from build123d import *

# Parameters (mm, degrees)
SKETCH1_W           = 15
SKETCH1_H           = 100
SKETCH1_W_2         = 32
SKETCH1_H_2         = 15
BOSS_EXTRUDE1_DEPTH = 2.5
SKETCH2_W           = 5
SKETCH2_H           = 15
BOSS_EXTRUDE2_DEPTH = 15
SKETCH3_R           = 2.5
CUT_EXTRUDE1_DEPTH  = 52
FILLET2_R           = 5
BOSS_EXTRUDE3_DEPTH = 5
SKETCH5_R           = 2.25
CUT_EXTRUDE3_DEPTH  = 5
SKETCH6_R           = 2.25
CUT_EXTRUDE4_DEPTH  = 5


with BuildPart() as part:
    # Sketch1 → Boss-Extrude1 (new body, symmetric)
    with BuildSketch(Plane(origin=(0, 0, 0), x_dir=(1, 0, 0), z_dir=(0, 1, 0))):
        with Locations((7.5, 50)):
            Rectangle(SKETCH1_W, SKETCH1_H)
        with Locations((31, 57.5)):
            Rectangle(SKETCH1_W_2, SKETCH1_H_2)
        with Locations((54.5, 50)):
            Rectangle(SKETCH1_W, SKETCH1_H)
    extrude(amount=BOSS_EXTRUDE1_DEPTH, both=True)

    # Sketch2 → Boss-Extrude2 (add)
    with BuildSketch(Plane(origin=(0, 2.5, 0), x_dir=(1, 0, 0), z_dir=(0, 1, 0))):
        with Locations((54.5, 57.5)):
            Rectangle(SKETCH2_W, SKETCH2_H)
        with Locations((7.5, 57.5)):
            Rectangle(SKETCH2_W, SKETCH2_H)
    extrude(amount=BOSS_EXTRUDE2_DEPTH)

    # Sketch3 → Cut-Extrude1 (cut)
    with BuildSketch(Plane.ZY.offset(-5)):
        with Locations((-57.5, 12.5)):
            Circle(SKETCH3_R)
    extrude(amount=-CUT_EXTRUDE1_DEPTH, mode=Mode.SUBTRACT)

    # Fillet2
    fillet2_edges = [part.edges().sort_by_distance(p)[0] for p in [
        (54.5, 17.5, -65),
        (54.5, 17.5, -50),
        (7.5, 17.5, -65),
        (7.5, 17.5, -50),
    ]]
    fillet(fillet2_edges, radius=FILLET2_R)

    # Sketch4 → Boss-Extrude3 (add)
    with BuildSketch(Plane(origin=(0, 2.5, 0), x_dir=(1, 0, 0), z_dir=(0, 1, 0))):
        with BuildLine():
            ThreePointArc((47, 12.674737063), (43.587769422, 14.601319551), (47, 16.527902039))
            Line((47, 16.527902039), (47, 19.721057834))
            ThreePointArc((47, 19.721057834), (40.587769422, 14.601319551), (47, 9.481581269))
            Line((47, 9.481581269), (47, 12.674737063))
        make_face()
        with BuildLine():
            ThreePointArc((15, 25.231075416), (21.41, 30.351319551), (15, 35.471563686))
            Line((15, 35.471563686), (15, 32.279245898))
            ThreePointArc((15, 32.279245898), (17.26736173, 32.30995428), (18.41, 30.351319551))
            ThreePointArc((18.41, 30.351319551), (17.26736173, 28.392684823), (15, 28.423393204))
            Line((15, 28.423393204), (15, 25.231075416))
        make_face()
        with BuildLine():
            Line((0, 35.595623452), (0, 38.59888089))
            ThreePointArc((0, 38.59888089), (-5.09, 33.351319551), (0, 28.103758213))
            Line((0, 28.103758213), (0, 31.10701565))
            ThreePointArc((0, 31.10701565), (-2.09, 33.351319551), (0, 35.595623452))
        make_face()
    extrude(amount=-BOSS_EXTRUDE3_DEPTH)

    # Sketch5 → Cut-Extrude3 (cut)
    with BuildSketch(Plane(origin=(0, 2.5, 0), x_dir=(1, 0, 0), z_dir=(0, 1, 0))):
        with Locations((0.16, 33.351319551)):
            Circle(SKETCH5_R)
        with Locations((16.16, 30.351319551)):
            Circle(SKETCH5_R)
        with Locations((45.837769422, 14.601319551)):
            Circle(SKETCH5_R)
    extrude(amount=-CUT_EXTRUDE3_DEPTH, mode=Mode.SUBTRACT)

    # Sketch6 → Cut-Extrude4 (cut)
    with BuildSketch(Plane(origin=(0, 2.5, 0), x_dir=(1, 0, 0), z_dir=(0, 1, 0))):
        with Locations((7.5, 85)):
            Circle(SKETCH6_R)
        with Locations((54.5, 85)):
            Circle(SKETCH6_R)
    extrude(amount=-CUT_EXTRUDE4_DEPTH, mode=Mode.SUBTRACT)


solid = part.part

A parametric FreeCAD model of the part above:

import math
import FreeCAD as App
import Part
import Sketcher
from FreeCAD import Vector


def edges_at(feature, points):
    """Names of the edges that pass closest to the given points."""
    edges = feature.Shape.Edges
    near = lambda p: min(range(len(edges)), key=lambda i: edges[i].distToShape(Part.Vertex(*p))[0])
    return sorted({f"Edge{near(p) + 1}" for p in points})

doc = App.newDocument("Part")
body = doc.addObject("PartDesign::Body", "Body")

# Sketch on XZ plane
sketch1 = doc.addObject("Sketcher::SketchObject", "Sketch")
body.addObject(sketch1)
sketch1.AttachmentSupport = (doc.XZ_Plane, [""])
sketch1.MapMode = "FlatFace"
sketch1.addGeometry(Part.LineSegment(Vector(0, -100, 0), Vector(0, 0, 0)), False)
sketch1.addGeometry(Part.LineSegment(Vector(0, 0, 0), Vector(15, 0, 0)), False)
sketch1.addGeometry(Part.LineSegment(Vector(15, 0, 0), Vector(15, -50, 0)), False)
sketch1.addGeometry(Part.LineSegment(Vector(15, -50, 0), Vector(47, -50, 0)), False)
sketch1.addGeometry(Part.LineSegment(Vector(47, -50, 0), Vector(47, 0, 0)), False)
sketch1.addGeometry(Part.LineSegment(Vector(47, 0, 0), Vector(62, 0, 0)), False)
sketch1.addGeometry(Part.LineSegment(Vector(62, 0, 0), Vector(62, -100, 0)), False)
sketch1.addGeometry(Part.LineSegment(Vector(62, -100, 0), Vector(47, -100, 0)), False)
sketch1.addGeometry(Part.LineSegment(Vector(47, -100, 0), Vector(47, -65, 0)), False)
sketch1.addGeometry(Part.LineSegment(Vector(47, -65, 0), Vector(15, -65, 0)), False)
sketch1.addGeometry(Part.LineSegment(Vector(15, -65, 0), Vector(15, -100, 0)), False)
sketch1.addGeometry(Part.LineSegment(Vector(15, -100, 0), Vector(0, -100, 0)), False)
sketch1.addConstraint(Sketcher.Constraint("Coincident", 0, 2, 1, 1))
sketch1.addConstraint(Sketcher.Constraint("Coincident", 1, 2, 2, 1))
sketch1.addConstraint(Sketcher.Constraint("Coincident", 2, 2, 3, 1))
sketch1.addConstraint(Sketcher.Constraint("Coincident", 3, 2, 4, 1))
sketch1.addConstraint(Sketcher.Constraint("Coincident", 4, 2, 5, 1))
sketch1.addConstraint(Sketcher.Constraint("Coincident", 5, 2, 6, 1))
sketch1.addConstraint(Sketcher.Constraint("Coincident", 6, 2, 7, 1))
sketch1.addConstraint(Sketcher.Constraint("Coincident", 7, 2, 8, 1))
sketch1.addConstraint(Sketcher.Constraint("Coincident", 8, 2, 9, 1))
sketch1.addConstraint(Sketcher.Constraint("Coincident", 9, 2, 10, 1))
sketch1.addConstraint(Sketcher.Constraint("Coincident", 10, 2, 11, 1))
sketch1.addConstraint(Sketcher.Constraint("Coincident", 11, 2, 0, 1))
sketch1.addConstraint(Sketcher.Constraint("Vertical", 0))
sketch1.addConstraint(Sketcher.Constraint("Horizontal", 1))
sketch1.addConstraint(Sketcher.Constraint("Vertical", 2))
sketch1.addConstraint(Sketcher.Constraint("Horizontal", 3))
sketch1.addConstraint(Sketcher.Constraint("Vertical", 4))
sketch1.addConstraint(Sketcher.Constraint("Horizontal", 5))
sketch1.addConstraint(Sketcher.Constraint("Vertical", 6))
sketch1.addConstraint(Sketcher.Constraint("Horizontal", 7))
sketch1.addConstraint(Sketcher.Constraint("Vertical", 8))
sketch1.addConstraint(Sketcher.Constraint("Horizontal", 9))
sketch1.addConstraint(Sketcher.Constraint("Vertical", 10))
sketch1.addConstraint(Sketcher.Constraint("Horizontal", 11))
sketch1.addConstraint(Sketcher.Constraint("Coincident", 0, 2, -1, 1))
sketch1.addConstraint(Sketcher.Constraint("PointOnObject", 4, 2, -1))
sketch1.addConstraint(Sketcher.Constraint("Horizontal", 7, 2, 10, 2))
sketch1.addConstraint(Sketcher.Constraint("Vertical", 4, 2, 7, 2))
sketch1.addConstraint(Sketcher.Constraint("Vertical", 2, 2, 9, 2))
sketch1.addConstraint(Sketcher.Constraint("Equal", 1, 5))
sketch1.addConstraint(Sketcher.Constraint("DistanceX", 1, 1, 1, 2, 15.0))
sketch1.addConstraint(Sketcher.Constraint("DistanceX", 3, 1, 3, 2, 32.0))
sketch1.addConstraint(Sketcher.Constraint("DistanceY", 0, 1, 0, 2, 100.0))
sketch1.addConstraint(Sketcher.Constraint("DistanceY", 2, 2, 2, 1, 50.0))
sketch1.addConstraint(Sketcher.Constraint("DistanceY", 8, 1, 8, 2, 35.0))
pad1 = doc.addObject("PartDesign::Pad", "Pad")
body.addObject(pad1)
pad1.Profile = sketch1
pad1.Length = 5
pad1.Midplane = True

# Sketch on XZ plane
sketch2 = doc.addObject("Sketcher::SketchObject", "Sketch001")
body.addObject(sketch2)
sketch2.AttachmentSupport = (doc.XZ_Plane, [""])
sketch2.MapMode = "FlatFace"
sketch2.AttachmentOffset = App.Placement(Vector(0, 0, -2.5), App.Rotation())
sketch2.addGeometry(Part.LineSegment(Vector(52, -65, 0), Vector(52, -50, 0)), False)
sketch2.addGeometry(Part.LineSegment(Vector(52, -50, 0), Vector(57, -50, 0)), False)
sketch2.addGeometry(Part.LineSegment(Vector(57, -50, 0), Vector(57, -65, 0)), False)
sketch2.addGeometry(Part.LineSegment(Vector(57, -65, 0), Vector(52, -65, 0)), False)
sketch2.addGeometry(Part.LineSegment(Vector(5, -65, 0), Vector(5, -50, 0)), False)
sketch2.addGeometry(Part.LineSegment(Vector(5, -50, 0), Vector(10, -50, 0)), False)
sketch2.addGeometry(Part.LineSegment(Vector(10, -50, 0), Vector(10, -65, 0)), False)
sketch2.addGeometry(Part.LineSegment(Vector(10, -65, 0), Vector(5, -65, 0)), False)
sketch2.addConstraint(Sketcher.Constraint("Coincident", 0, 2, 1, 1))
sketch2.addConstraint(Sketcher.Constraint("Coincident", 1, 2, 2, 1))
sketch2.addConstraint(Sketcher.Constraint("Coincident", 2, 2, 3, 1))
sketch2.addConstraint(Sketcher.Constraint("Coincident", 3, 2, 0, 1))
sketch2.addConstraint(Sketcher.Constraint("Coincident", 4, 2, 5, 1))
sketch2.addConstraint(Sketcher.Constraint("Coincident", 5, 2, 6, 1))
sketch2.addConstraint(Sketcher.Constraint("Coincident", 6, 2, 7, 1))
sketch2.addConstraint(Sketcher.Constraint("Coincident", 7, 2, 4, 1))
sketch2.addConstraint(Sketcher.Constraint("Vertical", 0))
sketch2.addConstraint(Sketcher.Constraint("Horizontal", 1))
sketch2.addConstraint(Sketcher.Constraint("Vertical", 2))
sketch2.addConstraint(Sketcher.Constraint("Horizontal", 3))
sketch2.addConstraint(Sketcher.Constraint("Vertical", 4))
sketch2.addConstraint(Sketcher.Constraint("Horizontal", 5))
sketch2.addConstraint(Sketcher.Constraint("Vertical", 6))
sketch2.addConstraint(Sketcher.Constraint("Horizontal", 7))
sketch2.addConstraint(Sketcher.Constraint("Horizontal", 1, 2, 4, 2))
sketch2.addConstraint(Sketcher.Constraint("Horizontal", 3, 2, 6, 2))
sketch2.addConstraint(Sketcher.Constraint("Equal", 3, 5))
sketch2.addConstraint(Sketcher.Constraint("DistanceX", 1, 1, 1, 2, 5.0))
sketch2.addConstraint(Sketcher.Constraint("DistanceY", 0, 1, 0, 2, 15.0))
sketch2.addConstraint(Sketcher.Constraint("DistanceX", -1, 1, 0, 2, 52.0))
sketch2.addConstraint(Sketcher.Constraint("DistanceY", 0, 2, -1, 1, 50.0))
sketch2.addConstraint(Sketcher.Constraint("DistanceX", -1, 1, 4, 2, 5.0))
pad2 = doc.addObject("PartDesign::Pad", "Pad001")
body.addObject(pad2)
pad2.Profile = sketch2
pad2.Length = 15
pad2.Reversed = True

# Sketch on YZ plane
sketch3 = doc.addObject("Sketcher::SketchObject", "Sketch002")
body.addObject(sketch3)
sketch3.AttachmentSupport = (doc.YZ_Plane, [""])
sketch3.MapMode = "FlatFace"
sketch3.AttachmentOffset = App.Placement(Vector(0, 0, 5), App.Rotation())
sketch3.addGeometry(Part.Circle(Vector(12.5, -57.5, 0), Vector(0, 0, 1), 2.5), False)
sketch3.addConstraint(Sketcher.Constraint("Diameter", 0, 5.0))
sketch3.addConstraint(Sketcher.Constraint("DistanceX", -1, 1, 0, 3, 12.5))
sketch3.addConstraint(Sketcher.Constraint("DistanceY", 0, 3, -1, 1, 57.5))
pocket1 = doc.addObject("PartDesign::Pocket", "Pocket")
body.addObject(pocket1)
pocket1.Profile = sketch3
pocket1.Length = 52
pocket1.Reversed = True
doc.recompute()

fillet = doc.addObject("PartDesign::Fillet", "Fillet")
body.addObject(fillet)
fillet.Base = (pocket1, edges_at(pocket1, [
    (54.5, 17.5, -65),
    (54.5, 17.5, -50),
    (7.5, 17.5, -65),
    (7.5, 17.5, -50),
]))
fillet.Radius = 5

# Sketch on XZ plane
sketch4 = doc.addObject("Sketcher::SketchObject", "Sketch003")
body.addObject(sketch4)
sketch4.AttachmentSupport = (doc.XZ_Plane, [""])
sketch4.MapMode = "FlatFace"
sketch4.AttachmentOffset = App.Placement(Vector(0, 0, -2.5), App.Rotation())
sketch4.addGeometry(Part.ArcOfCircle(Part.Circle(Vector(45.8, -14.6, 0), Vector(0, 0, 1), 2.2), math.radians(59), math.radians(301)), False)
sketch4.addGeometry(Part.LineSegment(Vector(47, -16.5, 0), Vector(47, -19.7, 0)), False)
sketch4.addGeometry(Part.ArcOfCircle(Part.Circle(Vector(45.8, -14.6, 0), Vector(0, 0, 1), 5.2), math.radians(77), math.radians(283)), False)
sketch4.addGeometry(Part.LineSegment(Vector(47, -9.5, 0), Vector(47, -12.7, 0)), False)
sketch4.addGeometry(Part.ArcOfCircle(Part.Circle(Vector(16.2, -30.4, 0), Vector(0, 0, 1), 5.2), math.radians(-103), math.radians(103)), False)
sketch4.addGeometry(Part.LineSegment(Vector(15, -35.5, 0), Vector(15, -32.3, 0)), False)
sketch4.addGeometry(Part.ArcOfCircle(Part.Circle(Vector(16.2, -30.4, 0), Vector(0, 0, 1), 2.2), math.radians(-121), math.radians(0)), False)
sketch4.addGeometry(Part.ArcOfCircle(Part.Circle(Vector(16.2, -30.4, 0), Vector(0, 0, 1), 2.2), math.radians(0), math.radians(121)), False)
sketch4.addGeometry(Part.LineSegment(Vector(15, -28.4, 0), Vector(15, -25.2, 0)), False)
sketch4.addGeometry(Part.LineSegment(Vector(0, -35.6, 0), Vector(0, -38.6, 0)), False)
sketch4.addGeometry(Part.ArcOfCircle(Part.Circle(Vector(0.2, -33.4, 0), Vector(0, 0, 1), 5.2), math.radians(92), math.radians(268)), False)
sketch4.addGeometry(Part.LineSegment(Vector(0, -28.1, 0), Vector(0, -31.1, 0)), False)
sketch4.addGeometry(Part.ArcOfCircle(Part.Circle(Vector(0.2, -33.4, 0), Vector(0, 0, 1), 2.2), math.radians(94), math.radians(266)), False)
sketch4.addConstraint(Sketcher.Constraint("Coincident", 0, 2, 1, 1))
sketch4.addConstraint(Sketcher.Constraint("Coincident", 1, 2, 2, 2))
sketch4.addConstraint(Sketcher.Constraint("Coincident", 2, 1, 3, 1))
sketch4.addConstraint(Sketcher.Constraint("Coincident", 3, 2, 0, 1))
sketch4.addConstraint(Sketcher.Constraint("Coincident", 4, 1, 5, 1))
sketch4.addConstraint(Sketcher.Constraint("Coincident", 5, 2, 6, 1))
sketch4.addConstraint(Sketcher.Constraint("Tangent", 6, 2, 7, 1))
sketch4.addConstraint(Sketcher.Constraint("Coincident", 7, 2, 8, 1))
sketch4.addConstraint(Sketcher.Constraint("Coincident", 8, 2, 4, 2))
sketch4.addConstraint(Sketcher.Constraint("Coincident", 9, 2, 10, 2))
sketch4.addConstraint(Sketcher.Constraint("Coincident", 10, 1, 11, 1))
sketch4.addConstraint(Sketcher.Constraint("Coincident", 11, 2, 12, 1))
sketch4.addConstraint(Sketcher.Constraint("Coincident", 12, 2, 9, 1))
sketch4.addConstraint(Sketcher.Constraint("Vertical", 1))
sketch4.addConstraint(Sketcher.Constraint("Vertical", 3))
sketch4.addConstraint(Sketcher.Constraint("Vertical", 5))
sketch4.addConstraint(Sketcher.Constraint("Vertical", 8))
sketch4.addConstraint(Sketcher.Constraint("Vertical", 9))
sketch4.addConstraint(Sketcher.Constraint("Vertical", 11))
sketch4.addConstraint(Sketcher.Constraint("Coincident", 2, 3, 0, 3))
sketch4.addConstraint(Sketcher.Constraint("Coincident", 6, 3, 4, 3))
sketch4.addConstraint(Sketcher.Constraint("Coincident", 12, 3, 10, 3))
sketch4.addConstraint(Sketcher.Constraint("Equal", 2, 4))
sketch4.addConstraint(Sketcher.Constraint("Equal", 0, 6))
sketch4.addConstraint(Sketcher.Constraint("Equal", 6, 7))
sketch4.addConstraint(Sketcher.Constraint("Equal", 4, 10))
sketch4.addConstraint(Sketcher.Constraint("Equal", 7, 12))
sketch4.addConstraint(Sketcher.Constraint("PointOnObject", 9, 2, -2))
sketch4.addConstraint(Sketcher.Constraint("PointOnObject", 10, 1, -2))
sketch4.addConstraint(Sketcher.Constraint("Horizontal", 7, 3, 6, 2))
sketch4.addConstraint(Sketcher.Constraint("Vertical", 1, 2, 2, 1))
sketch4.addConstraint(Sketcher.Constraint("Vertical", 5, 2, 7, 2))
sketch4.addConstraint(Sketcher.Constraint("Radius", 0, 2.25))
sketch4.addConstraint(Sketcher.Constraint("Radius", 2, 5.25))
sketch4.addConstraint(Sketcher.Constraint("DistanceX", -1, 1, 0, 2, 47.0))
sketch4.addConstraint(Sketcher.Constraint("DistanceX", -1, 1, 4, 1, 15.0))
sketch4.addConstraint(Sketcher.Constraint("DistanceX", 10, 3, 4, 3, 16.0))
sketch4.addConstraint(Sketcher.Constraint("DistanceY", 10, 3, 4, 3, 3.0))
sketch4.addConstraint(Sketcher.Constraint("DistanceX", -1, 1, 4, 3, 16.16))
sketch4.addConstraint(Sketcher.Constraint("DistanceY", 4, 3, 0, 3, 15.75))
sketch4.addConstraint(Sketcher.Constraint("DistanceY", 1, 2, 1, 1, 3.193156))
sketch4.addConstraint(Sketcher.Constraint("DistanceY", 0, 3, -1, 1, 14.60132))
pad3 = doc.addObject("PartDesign::Pad", "Pad002")
body.addObject(pad3)
pad3.Profile = sketch4
pad3.Length = 5

# Sketch on XZ plane
sketch5 = doc.addObject("Sketcher::SketchObject", "Sketch004")
body.addObject(sketch5)
sketch5.AttachmentSupport = (doc.XZ_Plane, [""])
sketch5.MapMode = "FlatFace"
sketch5.AttachmentOffset = App.Placement(Vector(0, 0, -2.5), App.Rotation())
sketch5.addGeometry(Part.Circle(Vector(0.2, -33.4, 0), Vector(0, 0, 1), 2.2), False)
sketch5.addGeometry(Part.Circle(Vector(16.2, -30.4, 0), Vector(0, 0, 1), 2.2), False)
sketch5.addGeometry(Part.Circle(Vector(45.8, -14.6, 0), Vector(0, 0, 1), 2.2), False)
sketch5.addConstraint(Sketcher.Constraint("Equal", 0, 1))
sketch5.addConstraint(Sketcher.Constraint("Equal", 1, 2))
sketch5.addConstraint(Sketcher.Constraint("Diameter", 0, 4.5))
sketch5.addConstraint(Sketcher.Constraint("DistanceX", 0, 3, 1, 3, 16.0))
sketch5.addConstraint(Sketcher.Constraint("DistanceY", 0, 3, 1, 3, 3.0))
sketch5.addConstraint(Sketcher.Constraint("DistanceX", -1, 1, 0, 3, 0.16))
sketch5.addConstraint(Sketcher.Constraint("DistanceY", 1, 3, 2, 3, 15.75))
sketch5.addConstraint(Sketcher.Constraint("DistanceY", 0, 3, -1, 1, 33.35132))
sketch5.addConstraint(Sketcher.Constraint("DistanceX", -1, 1, 2, 3, 45.837769))
pocket2 = doc.addObject("PartDesign::Pocket", "Pocket001")
body.addObject(pocket2)
pocket2.Profile = sketch5
pocket2.Length = 5
pocket2.Reversed = True

# Sketch on XZ plane
sketch6 = doc.addObject("Sketcher::SketchObject", "Sketch005")
body.addObject(sketch6)
sketch6.AttachmentSupport = (doc.XZ_Plane, [""])
sketch6.MapMode = "FlatFace"
sketch6.AttachmentOffset = App.Placement(Vector(0, 0, -2.5), App.Rotation())
sketch6.addGeometry(Part.Circle(Vector(7.5, -85, 0), Vector(0, 0, 1), 2.2), False)
sketch6.addGeometry(Part.Circle(Vector(54.5, -85, 0), Vector(0, 0, 1), 2.2), False)
sketch6.addConstraint(Sketcher.Constraint("Equal", 0, 1))
sketch6.addConstraint(Sketcher.Constraint("Horizontal", 0, 3, 1, 3))
sketch6.addConstraint(Sketcher.Constraint("Diameter", 0, 4.5))
sketch6.addConstraint(Sketcher.Constraint("DistanceY", 0, 3, -1, 1, 85.0))
sketch6.addConstraint(Sketcher.Constraint("DistanceX", 0, 3, 1, 3, 47.0))
sketch6.addConstraint(Sketcher.Constraint("DistanceX", -1, 1, 0, 3, 7.5))
pocket3 = doc.addObject("PartDesign::Pocket", "Pocket002")
body.addObject(pocket3)
pocket3.Profile = sketch6
pocket3.Length = 5
pocket3.Reversed = True

doc.recompute()
